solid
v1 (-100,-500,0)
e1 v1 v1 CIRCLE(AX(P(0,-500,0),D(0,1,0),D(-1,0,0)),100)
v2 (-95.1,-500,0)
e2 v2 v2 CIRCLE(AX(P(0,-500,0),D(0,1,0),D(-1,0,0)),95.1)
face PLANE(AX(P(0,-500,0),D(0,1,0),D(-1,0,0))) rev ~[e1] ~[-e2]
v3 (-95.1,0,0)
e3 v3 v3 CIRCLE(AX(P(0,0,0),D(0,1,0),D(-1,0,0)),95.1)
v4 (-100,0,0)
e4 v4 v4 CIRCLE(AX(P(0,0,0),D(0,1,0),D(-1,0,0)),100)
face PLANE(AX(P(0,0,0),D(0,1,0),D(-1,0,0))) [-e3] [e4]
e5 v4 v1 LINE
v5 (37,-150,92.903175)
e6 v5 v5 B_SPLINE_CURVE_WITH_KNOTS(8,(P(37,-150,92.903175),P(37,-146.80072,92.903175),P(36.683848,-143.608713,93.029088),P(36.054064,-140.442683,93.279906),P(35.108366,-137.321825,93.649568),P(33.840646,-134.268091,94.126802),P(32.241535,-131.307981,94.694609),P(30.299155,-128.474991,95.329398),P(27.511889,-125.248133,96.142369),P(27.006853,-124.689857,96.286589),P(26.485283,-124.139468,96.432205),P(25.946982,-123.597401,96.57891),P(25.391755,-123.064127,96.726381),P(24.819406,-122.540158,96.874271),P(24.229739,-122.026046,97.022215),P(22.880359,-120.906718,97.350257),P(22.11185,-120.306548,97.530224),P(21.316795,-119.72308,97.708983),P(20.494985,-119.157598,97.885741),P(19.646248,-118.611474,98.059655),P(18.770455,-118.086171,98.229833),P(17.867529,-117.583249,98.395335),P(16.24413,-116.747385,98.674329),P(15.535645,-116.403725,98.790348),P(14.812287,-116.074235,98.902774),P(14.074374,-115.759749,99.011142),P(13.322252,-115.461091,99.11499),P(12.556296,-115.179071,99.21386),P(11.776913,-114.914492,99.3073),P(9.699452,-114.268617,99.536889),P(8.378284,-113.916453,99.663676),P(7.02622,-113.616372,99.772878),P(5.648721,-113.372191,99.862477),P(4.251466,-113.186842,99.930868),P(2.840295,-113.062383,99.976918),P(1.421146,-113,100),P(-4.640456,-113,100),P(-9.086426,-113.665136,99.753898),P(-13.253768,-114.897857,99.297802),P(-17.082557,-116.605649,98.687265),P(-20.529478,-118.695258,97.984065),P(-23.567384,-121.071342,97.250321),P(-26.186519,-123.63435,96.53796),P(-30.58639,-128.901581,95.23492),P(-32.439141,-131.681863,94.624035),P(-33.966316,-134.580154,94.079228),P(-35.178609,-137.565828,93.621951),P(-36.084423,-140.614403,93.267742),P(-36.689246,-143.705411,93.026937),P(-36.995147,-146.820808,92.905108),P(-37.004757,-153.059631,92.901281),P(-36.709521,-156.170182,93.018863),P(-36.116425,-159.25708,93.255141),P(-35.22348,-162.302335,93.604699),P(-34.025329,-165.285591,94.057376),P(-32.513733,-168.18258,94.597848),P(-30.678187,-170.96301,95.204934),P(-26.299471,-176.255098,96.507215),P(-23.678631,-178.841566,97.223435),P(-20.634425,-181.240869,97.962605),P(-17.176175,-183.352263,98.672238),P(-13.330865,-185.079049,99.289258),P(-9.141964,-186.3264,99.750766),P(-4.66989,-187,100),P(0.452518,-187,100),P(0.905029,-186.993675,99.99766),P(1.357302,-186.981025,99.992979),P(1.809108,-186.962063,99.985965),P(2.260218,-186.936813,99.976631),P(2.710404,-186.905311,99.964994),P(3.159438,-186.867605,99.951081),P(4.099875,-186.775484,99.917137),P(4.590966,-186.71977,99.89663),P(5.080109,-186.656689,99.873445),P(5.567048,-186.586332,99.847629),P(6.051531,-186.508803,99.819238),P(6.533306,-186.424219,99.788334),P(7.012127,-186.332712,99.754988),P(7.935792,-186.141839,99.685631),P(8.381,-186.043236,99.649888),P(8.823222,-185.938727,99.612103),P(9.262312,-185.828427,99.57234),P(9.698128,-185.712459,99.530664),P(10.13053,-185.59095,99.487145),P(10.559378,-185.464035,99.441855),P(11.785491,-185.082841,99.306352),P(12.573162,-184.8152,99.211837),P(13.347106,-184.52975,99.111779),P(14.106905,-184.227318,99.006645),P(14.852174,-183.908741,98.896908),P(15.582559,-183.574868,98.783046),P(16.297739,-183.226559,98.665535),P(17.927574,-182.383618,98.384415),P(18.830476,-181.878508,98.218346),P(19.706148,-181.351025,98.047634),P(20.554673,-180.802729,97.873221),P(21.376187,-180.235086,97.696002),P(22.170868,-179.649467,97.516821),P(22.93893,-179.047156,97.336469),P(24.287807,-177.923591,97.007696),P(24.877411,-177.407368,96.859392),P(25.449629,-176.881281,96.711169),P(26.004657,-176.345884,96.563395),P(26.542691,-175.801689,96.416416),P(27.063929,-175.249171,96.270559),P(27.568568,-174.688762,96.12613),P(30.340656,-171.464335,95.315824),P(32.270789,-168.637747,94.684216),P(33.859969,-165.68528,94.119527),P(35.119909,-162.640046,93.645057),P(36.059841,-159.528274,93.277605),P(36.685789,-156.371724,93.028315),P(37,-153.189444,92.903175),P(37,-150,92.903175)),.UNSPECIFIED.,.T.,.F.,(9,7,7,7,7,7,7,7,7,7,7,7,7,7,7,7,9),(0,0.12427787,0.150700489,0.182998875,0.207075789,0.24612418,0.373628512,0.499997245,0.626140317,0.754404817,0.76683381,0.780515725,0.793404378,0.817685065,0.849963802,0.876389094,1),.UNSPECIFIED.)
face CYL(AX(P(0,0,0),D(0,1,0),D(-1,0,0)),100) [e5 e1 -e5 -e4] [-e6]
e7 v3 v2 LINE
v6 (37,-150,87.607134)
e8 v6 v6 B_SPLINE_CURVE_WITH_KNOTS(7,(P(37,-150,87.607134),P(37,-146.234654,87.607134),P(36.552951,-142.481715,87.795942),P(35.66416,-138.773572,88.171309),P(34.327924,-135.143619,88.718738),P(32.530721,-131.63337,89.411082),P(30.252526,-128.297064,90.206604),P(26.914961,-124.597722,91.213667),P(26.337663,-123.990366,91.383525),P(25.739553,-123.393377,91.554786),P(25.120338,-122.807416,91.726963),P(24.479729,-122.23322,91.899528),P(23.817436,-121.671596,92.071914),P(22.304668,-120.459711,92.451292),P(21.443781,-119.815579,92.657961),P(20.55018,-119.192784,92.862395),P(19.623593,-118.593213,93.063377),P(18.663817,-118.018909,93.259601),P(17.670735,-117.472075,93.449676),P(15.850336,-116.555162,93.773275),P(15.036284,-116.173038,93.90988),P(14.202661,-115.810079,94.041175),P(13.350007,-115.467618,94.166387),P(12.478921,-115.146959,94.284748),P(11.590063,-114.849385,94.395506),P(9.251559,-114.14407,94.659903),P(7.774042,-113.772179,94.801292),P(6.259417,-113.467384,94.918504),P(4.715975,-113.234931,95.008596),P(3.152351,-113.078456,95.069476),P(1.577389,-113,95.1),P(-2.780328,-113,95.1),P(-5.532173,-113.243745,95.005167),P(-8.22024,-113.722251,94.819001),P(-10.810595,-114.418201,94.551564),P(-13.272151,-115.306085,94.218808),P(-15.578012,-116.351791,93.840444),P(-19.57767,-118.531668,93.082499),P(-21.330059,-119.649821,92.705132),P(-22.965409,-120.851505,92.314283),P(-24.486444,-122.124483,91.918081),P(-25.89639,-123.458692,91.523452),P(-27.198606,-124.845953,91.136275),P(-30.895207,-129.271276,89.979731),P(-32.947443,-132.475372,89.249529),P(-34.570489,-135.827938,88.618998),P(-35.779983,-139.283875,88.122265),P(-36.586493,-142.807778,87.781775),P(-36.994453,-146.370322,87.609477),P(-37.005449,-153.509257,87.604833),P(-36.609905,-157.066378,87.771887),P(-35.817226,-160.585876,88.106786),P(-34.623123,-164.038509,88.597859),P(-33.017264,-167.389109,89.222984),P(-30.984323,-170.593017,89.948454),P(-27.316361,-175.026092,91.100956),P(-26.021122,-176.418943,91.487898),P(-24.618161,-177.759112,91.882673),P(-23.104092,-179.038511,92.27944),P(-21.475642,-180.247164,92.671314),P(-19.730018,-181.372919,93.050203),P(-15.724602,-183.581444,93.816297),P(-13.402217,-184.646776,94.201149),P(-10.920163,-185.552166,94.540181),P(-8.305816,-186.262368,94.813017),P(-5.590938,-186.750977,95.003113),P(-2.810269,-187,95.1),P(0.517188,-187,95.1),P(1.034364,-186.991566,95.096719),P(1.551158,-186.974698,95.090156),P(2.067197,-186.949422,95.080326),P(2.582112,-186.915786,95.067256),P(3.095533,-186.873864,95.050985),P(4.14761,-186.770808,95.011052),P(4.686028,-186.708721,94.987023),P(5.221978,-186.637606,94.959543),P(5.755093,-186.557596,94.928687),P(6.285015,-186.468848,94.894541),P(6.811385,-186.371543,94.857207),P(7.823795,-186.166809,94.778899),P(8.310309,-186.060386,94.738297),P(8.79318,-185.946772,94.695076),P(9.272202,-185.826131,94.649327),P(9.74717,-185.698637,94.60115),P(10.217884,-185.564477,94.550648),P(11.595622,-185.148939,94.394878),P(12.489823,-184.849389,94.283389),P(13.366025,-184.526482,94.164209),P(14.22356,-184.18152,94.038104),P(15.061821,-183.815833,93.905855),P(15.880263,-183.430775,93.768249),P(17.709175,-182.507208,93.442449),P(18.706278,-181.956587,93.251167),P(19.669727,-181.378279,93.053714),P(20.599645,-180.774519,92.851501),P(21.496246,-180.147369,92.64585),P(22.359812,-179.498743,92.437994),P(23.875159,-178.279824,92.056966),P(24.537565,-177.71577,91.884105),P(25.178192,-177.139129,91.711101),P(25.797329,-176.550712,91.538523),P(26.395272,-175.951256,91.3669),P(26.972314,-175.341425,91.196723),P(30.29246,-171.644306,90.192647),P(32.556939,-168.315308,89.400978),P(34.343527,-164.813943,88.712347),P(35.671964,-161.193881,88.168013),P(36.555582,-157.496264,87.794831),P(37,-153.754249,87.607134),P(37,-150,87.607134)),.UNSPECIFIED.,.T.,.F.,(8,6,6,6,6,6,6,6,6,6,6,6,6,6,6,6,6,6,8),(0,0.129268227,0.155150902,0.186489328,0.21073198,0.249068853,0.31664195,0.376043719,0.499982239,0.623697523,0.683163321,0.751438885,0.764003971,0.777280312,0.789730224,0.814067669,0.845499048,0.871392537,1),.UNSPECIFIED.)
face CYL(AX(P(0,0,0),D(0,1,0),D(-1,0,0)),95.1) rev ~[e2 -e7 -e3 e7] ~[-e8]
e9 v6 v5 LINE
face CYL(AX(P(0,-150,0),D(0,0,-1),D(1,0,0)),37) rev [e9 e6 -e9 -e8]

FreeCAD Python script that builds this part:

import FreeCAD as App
import Part
import Sketcher

V = App.Vector
Q = App.Units.Quantity

doc = App.newDocument("Part")
body = doc.addObject("PartDesign::Body", "Body")

sketch1 = body.newObject("Sketcher::SketchObject", "Sketch")
sketch1.AttachmentSupport = (doc.getObject("XZ_Plane"), [""])
sketch1.MapMode = "FlatFace"
sketch1.addGeometry(Part.Circle(V(0, 0, 0), V(0, 0, 1), 100), False)
sketch1.addGeometry(Part.Circle(V(0, 0, 0), V(0, 0, 1), 95.1), False)
sketch1.addConstraint(Sketcher.Constraint("Coincident", 0, 3, -1, 1))
sketch1.addConstraint(Sketcher.Constraint("Coincident", 1, 3, -1, 1))
sketch1.addConstraint(Sketcher.Constraint("Diameter", 0, Q("200 mm")))
sketch1.addConstraint(Sketcher.Constraint("Diameter", 1, Q("190.2 mm")))
pad1 = body.newObject("PartDesign::Pad", "Pad")
pad1.Profile = sketch1
pad1.Length = 500

sketch2 = body.newObject("Sketcher::SketchObject", "Sketch001")
sketch2.AttachmentSupport = (doc.getObject("XY_Plane"), [""])
sketch2.MapMode = "FlatFace"
sketch2.addGeometry(Part.Circle(V(0, -150, 0), V(0, 0, 1), 37), False)
sketch2.addConstraint(Sketcher.Constraint("PointOnObject", 0, 3, -2))
sketch2.addConstraint(Sketcher.Constraint("Diameter", 0, Q("74 mm")))
sketch2.addConstraint(Sketcher.Constraint("DistanceY", 0, 3, -1, 1, Q("150 mm")))
pocket1 = body.newObject("PartDesign::Pocket", "Pocket")
pocket1.Profile = sketch2
pocket1.Type = "ThroughAll"
pocket1.Reversed = True

doc.recompute()
